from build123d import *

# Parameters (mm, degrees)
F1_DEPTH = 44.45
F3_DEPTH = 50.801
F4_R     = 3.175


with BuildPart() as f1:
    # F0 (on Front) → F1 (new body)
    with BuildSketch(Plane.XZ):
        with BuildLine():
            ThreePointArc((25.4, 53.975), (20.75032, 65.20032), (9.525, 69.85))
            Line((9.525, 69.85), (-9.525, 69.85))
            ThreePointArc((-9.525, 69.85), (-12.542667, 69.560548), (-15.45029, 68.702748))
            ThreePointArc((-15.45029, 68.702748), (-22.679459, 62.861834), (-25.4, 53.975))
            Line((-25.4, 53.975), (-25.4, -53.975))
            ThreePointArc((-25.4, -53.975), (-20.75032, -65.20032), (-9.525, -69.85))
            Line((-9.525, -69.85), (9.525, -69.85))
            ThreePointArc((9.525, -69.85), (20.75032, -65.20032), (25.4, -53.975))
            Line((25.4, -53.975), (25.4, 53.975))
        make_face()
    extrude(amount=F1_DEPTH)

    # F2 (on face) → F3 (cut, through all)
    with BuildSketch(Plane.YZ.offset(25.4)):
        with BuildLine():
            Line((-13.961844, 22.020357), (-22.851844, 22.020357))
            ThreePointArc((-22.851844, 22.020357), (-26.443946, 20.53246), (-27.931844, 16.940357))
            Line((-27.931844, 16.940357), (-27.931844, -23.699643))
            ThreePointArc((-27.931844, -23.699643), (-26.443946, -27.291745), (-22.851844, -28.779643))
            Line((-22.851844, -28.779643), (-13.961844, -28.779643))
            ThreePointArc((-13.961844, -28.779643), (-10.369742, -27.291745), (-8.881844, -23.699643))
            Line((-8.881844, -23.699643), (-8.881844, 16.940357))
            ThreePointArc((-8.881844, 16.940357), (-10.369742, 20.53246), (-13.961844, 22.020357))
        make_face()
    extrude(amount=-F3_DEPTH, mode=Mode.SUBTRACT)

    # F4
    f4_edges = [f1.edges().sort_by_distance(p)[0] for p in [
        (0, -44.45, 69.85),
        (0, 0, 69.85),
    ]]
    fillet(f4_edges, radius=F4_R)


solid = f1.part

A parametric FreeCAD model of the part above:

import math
import FreeCAD as App
import Part
import Sketcher
Q = App.Units.Quantity


def edges_at(feature, points):
    """Names of the edges that pass closest to the given points."""
    edges = feature.Shape.Edges
    near = lambda p: min(range(len(edges)), key=lambda i: edges[i].distToShape(Part.Vertex(*p))[0])
    return sorted({f"Edge{near(p) + 1}" for p in points})

doc = App.newDocument("Part")
body = doc.addObject("PartDesign::Body", "Body")

# Sketch on XZ plane
sketch1 = body.newObject("Sketcher::SketchObject", "Sketch")
sketch1.AttachmentSupport = (doc.getObject("XZ_Plane"), [""])
sketch1.MapMode = "FlatFace"
sketch1.addGeometry(Part.ArcOfCircle(Part.Circle(App.Vector(10, 54, 0), App.Vector(0, 0, 1), 16), math.radians(0), math.radians(90)), False)
sketch1.addGeometry(Part.LineSegment(App.Vector(10, 70, 0), App.Vector(-10, 70, 0)), False)
sketch1.addGeometry(Part.ArcOfCircle(Part.Circle(App.Vector(-10, 54, 0), App.Vector(0, 0, 1), 16), math.radians(90), math.radians(112)), False)
sketch1.addGeometry(Part.ArcOfCircle(Part.Circle(App.Vector(-10, 54, 0), App.Vector(0, 0, 1), 16), math.radians(112), math.radians(180)), False)
sketch1.addGeometry(Part.LineSegment(App.Vector(-25, 54, 0), App.Vector(-25, -54, 0)), False)
sketch1.addGeometry(Part.ArcOfCircle(Part.Circle(App.Vector(-10, -54, 0), App.Vector(0, 0, 1), 16), math.radians(-180), math.radians(-90)), False)
sketch1.addGeometry(Part.LineSegment(App.Vector(-10, -70, 0), App.Vector(10, -70, 0)), False)
sketch1.addGeometry(Part.ArcOfCircle(Part.Circle(App.Vector(10, -54, 0), App.Vector(0, 0, 1), 16), math.radians(-90), math.radians(0)), False)
sketch1.addGeometry(Part.LineSegment(App.Vector(25, -54, 0), App.Vector(25, 54, 0)), False)
sketch1.addConstraint(Sketcher.Constraint("Tangent", 0, 2, 1, 1))
sketch1.addConstraint(Sketcher.Constraint("Tangent", 1, 2, 2, 1))
sketch1.addConstraint(Sketcher.Constraint("Tangent", 2, 2, 3, 1))
sketch1.addConstraint(Sketcher.Constraint("Tangent", 3, 2, 4, 1))
sketch1.addConstraint(Sketcher.Constraint("Tangent", 4, 2, 5, 1))
sketch1.addConstraint(Sketcher.Constraint("Tangent", 5, 2, 6, 1))
sketch1.addConstraint(Sketcher.Constraint("Tangent", 6, 2, 7, 1))
sketch1.addConstraint(Sketcher.Constraint("Tangent", 7, 2, 8, 1))
sketch1.addConstraint(Sketcher.Constraint("Tangent", 8, 2, 0, 1))
sketch1.addConstraint(Sketcher.Constraint("Horizontal", 1))
sketch1.addConstraint(Sketcher.Constraint("Vertical", 4))
sketch1.addConstraint(Sketcher.Constraint("Horizontal", 6))
sketch1.addConstraint(Sketcher.Constraint("Vertical", 8))
sketch1.addConstraint(Sketcher.Constraint("Equal", 0, 3))
sketch1.addConstraint(Sketcher.Constraint("Equal", 3, 5))
sketch1.addConstraint(Sketcher.Constraint("Equal", 5, 7))
sketch1.addConstraint(Sketcher.Constraint("Symmetric", 0, 3, 5, 3, -1, 1))
sketch1.addConstraint(Sketcher.Constraint("Horizontal", 0, 3, 3, 3))
sketch1.addConstraint(Sketcher.Constraint("DistanceX", 3, 2, -1, 1, Q("1 in")))
sketch1.addConstraint(Sketcher.Constraint("Radius", 0, Q("0.625 in")))
sketch1.addConstraint(Sketcher.Constraint("DistanceY", 4, 2, 4, 1, Q("4.25 in")))
sketch1.addConstraint(Sketcher.Constraint("DistanceX", 2, 2, -1, 1, 15.45029))
pad1 = body.newObject("PartDesign::Pad", "Pad")
pad1.Profile = sketch1
pad1.Length = Q("1.75 in")

# Sketch on YZ plane
sketch2 = body.newObject("Sketcher::SketchObject", "Sketch001")
sketch2.AttachmentSupport = (doc.getObject("YZ_Plane"), [""])
sketch2.MapMode = "FlatFace"
sketch2.AttachmentOffset = App.Placement(App.Vector(0, 0, 1 * 25.4), App.Rotation())
sketch2.addGeometry(Part.LineSegment(App.Vector(-14, 22, 0), App.Vector(-23, 22, 0)), False)
sketch2.addGeometry(Part.ArcOfCircle(Part.Circle(App.Vector(-23, 17, 0), App.Vector(0, 0, 1), 5), math.radians(90), math.radians(180)), False)
sketch2.addGeometry(Part.LineSegment(App.Vector(-28, 17, 0), App.Vector(-28, -24, 0)), False)
sketch2.addGeometry(Part.ArcOfCircle(Part.Circle(App.Vector(-23, -24, 0), App.Vector(0, 0, 1), 5), math.radians(-180), math.radians(-90)), False)
sketch2.addGeometry(Part.LineSegment(App.Vector(-23, -29, 0), App.Vector(-14, -29, 0)), False)
sketch2.addGeometry(Part.ArcOfCircle(Part.Circle(App.Vector(-14, -24, 0), App.Vector(0, 0, 1), 5), math.radians(-90), math.radians(0)), False)
sketch2.addGeometry(Part.LineSegment(App.Vector(-9, -24, 0), App.Vector(-9, 17, 0)), False)
sketch2.addGeometry(Part.ArcOfCircle(Part.Circle(App.Vector(-14, 17, 0), App.Vector(0, 0, 1), 5), math.radians(0), math.radians(90)), False)
sketch2.addConstraint(Sketcher.Constraint("Tangent", 0, 2, 1, 1))
sketch2.addConstraint(Sketcher.Constraint("Tangent", 1, 2, 2, 1))
sketch2.addConstraint(Sketcher.Constraint("Tangent", 2, 2, 3, 1))
sketch2.addConstraint(Sketcher.Constraint("Tangent", 3, 2, 4, 1))
sketch2.addConstraint(Sketcher.Constraint("Tangent", 4, 2, 5, 1))
sketch2.addConstraint(Sketcher.Constraint("Tangent", 5, 2, 6, 1))
sketch2.addConstraint(Sketcher.Constraint("Tangent", 6, 2, 7, 1))
sketch2.addConstraint(Sketcher.Constraint("Tangent", 7, 2, 0, 1))
sketch2.addConstraint(Sketcher.Constraint("Horizontal", 0))
sketch2.addConstraint(Sketcher.Constraint("Vertical", 2))
sketch2.addConstraint(Sketcher.Constraint("Horizontal", 4))
sketch2.addConstraint(Sketcher.Constraint("Vertical", 6))
sketch2.addConstraint(Sketcher.Constraint("Equal", 1, 3))
sketch2.addConstraint(Sketcher.Constraint("Equal", 3, 5))
sketch2.addConstraint(Sketcher.Constraint("Equal", 5, 7))
sketch2.addConstraint(Sketcher.Constraint("Radius", 1, Q("0.2 in")))
sketch2.addConstraint(Sketcher.Constraint("DistanceY", 2, 2, 2, 1, Q("1.6 in")))
sketch2.addConstraint(Sketcher.Constraint("DistanceX", 0, 2, 0, 1, Q("0.35 in")))
sketch2.addConstraint(Sketcher.Constraint("DistanceY", 3, 3, -1, 1, 23.699641))
sketch2.addConstraint(Sketcher.Constraint("DistanceX", 1, 3, -1, 1, 22.851844))
pocket1 = body.newObject("PartDesign::Pocket", "Pocket")
pocket1.Profile = sketch2
pocket1.Type = "ThroughAll"
doc.recompute()

fillet = body.newObject("PartDesign::Fillet", "Fillet")
fillet.Base = (pocket1, edges_at(pocket1, [(0, -44.45, 69.85), (0, 0, 69.85)]))
fillet.Radius = Q("0.125 in")

doc.recompute()
